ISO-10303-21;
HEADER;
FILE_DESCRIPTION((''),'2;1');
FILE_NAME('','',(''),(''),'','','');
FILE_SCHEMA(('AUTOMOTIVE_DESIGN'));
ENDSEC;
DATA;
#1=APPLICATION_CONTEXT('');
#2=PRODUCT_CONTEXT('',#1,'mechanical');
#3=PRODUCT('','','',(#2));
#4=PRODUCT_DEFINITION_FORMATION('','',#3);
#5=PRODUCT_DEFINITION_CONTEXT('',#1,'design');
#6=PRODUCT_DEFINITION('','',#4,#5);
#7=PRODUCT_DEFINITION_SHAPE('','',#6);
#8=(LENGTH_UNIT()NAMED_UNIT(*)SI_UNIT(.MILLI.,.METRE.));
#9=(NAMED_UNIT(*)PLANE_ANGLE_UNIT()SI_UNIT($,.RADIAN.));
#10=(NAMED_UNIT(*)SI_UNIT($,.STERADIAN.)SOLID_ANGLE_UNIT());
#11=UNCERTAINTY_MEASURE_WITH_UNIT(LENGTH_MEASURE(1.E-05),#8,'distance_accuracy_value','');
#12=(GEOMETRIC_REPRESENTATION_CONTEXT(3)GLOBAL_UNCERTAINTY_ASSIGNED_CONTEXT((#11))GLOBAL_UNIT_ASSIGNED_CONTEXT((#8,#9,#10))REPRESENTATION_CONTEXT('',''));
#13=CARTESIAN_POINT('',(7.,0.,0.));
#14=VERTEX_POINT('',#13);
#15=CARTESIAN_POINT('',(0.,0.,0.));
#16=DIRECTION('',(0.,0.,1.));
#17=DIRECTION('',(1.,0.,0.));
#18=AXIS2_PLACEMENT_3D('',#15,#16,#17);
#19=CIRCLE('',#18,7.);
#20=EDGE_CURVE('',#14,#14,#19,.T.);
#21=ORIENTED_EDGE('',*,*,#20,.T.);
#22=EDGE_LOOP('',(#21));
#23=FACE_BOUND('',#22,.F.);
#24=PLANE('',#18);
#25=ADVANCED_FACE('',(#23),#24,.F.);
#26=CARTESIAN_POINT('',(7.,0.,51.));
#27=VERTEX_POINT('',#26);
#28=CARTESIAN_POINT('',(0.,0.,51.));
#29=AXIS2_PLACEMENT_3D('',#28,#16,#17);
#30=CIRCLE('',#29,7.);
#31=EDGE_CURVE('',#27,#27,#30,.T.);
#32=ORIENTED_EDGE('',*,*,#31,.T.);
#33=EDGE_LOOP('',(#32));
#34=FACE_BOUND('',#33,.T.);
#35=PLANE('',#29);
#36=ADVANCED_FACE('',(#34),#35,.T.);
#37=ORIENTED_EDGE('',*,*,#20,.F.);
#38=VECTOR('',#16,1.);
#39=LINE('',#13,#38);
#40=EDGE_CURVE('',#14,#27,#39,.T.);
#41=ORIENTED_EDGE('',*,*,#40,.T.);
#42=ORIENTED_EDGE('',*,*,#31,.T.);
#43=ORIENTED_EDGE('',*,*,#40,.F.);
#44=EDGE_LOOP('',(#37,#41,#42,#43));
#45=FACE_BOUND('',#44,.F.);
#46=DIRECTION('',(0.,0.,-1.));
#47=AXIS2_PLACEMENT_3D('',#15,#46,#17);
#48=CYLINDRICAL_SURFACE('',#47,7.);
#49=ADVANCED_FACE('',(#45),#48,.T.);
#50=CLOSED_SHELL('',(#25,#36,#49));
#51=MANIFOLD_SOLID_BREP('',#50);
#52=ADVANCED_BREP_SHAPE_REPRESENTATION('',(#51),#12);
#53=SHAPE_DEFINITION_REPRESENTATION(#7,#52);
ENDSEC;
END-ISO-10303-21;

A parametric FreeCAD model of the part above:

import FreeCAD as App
import Part
import Sketcher

V = App.Vector

doc = App.newDocument("Part")
params = doc.addObject("Spreadsheet::Sheet", "Params")
for row, (alias, value) in enumerate([
    ("sketch1_diameter", "14 mm"),
    ("pad1_length", "51 mm"),
], start=1):
    params.set(f"A{row}", alias)
    params.set(f"B{row}", "=" + value)
    params.setAlias(f"B{row}", alias)

body = doc.addObject("PartDesign::Body", "Body")

# Sketch on XY plane
sketch1 = doc.addObject("Sketcher::SketchObject", "Sketch")
body.addObject(sketch1)
sketch1.AttachmentSupport = (doc.XY_Plane, [""])
sketch1.MapMode = "FlatFace"
sketch1.addGeometry(Part.Circle(V(0, 0, 0), V(0, 0, 1), 7), False)
sketch1.addConstraint([
    Sketcher.Constraint("Coincident", 0, 3, -1, 1),
    Sketcher.Constraint("Diameter", 0, 14.0),
])
sketch1.setExpression("Constraints[1]", "Params.sketch1_diameter")
pad1 = doc.addObject("PartDesign::Pad", "Pad")
body.addObject(pad1)
pad1.Profile = sketch1
pad1.setExpression("Length", "Params.pad1_length")

doc.recompute()
